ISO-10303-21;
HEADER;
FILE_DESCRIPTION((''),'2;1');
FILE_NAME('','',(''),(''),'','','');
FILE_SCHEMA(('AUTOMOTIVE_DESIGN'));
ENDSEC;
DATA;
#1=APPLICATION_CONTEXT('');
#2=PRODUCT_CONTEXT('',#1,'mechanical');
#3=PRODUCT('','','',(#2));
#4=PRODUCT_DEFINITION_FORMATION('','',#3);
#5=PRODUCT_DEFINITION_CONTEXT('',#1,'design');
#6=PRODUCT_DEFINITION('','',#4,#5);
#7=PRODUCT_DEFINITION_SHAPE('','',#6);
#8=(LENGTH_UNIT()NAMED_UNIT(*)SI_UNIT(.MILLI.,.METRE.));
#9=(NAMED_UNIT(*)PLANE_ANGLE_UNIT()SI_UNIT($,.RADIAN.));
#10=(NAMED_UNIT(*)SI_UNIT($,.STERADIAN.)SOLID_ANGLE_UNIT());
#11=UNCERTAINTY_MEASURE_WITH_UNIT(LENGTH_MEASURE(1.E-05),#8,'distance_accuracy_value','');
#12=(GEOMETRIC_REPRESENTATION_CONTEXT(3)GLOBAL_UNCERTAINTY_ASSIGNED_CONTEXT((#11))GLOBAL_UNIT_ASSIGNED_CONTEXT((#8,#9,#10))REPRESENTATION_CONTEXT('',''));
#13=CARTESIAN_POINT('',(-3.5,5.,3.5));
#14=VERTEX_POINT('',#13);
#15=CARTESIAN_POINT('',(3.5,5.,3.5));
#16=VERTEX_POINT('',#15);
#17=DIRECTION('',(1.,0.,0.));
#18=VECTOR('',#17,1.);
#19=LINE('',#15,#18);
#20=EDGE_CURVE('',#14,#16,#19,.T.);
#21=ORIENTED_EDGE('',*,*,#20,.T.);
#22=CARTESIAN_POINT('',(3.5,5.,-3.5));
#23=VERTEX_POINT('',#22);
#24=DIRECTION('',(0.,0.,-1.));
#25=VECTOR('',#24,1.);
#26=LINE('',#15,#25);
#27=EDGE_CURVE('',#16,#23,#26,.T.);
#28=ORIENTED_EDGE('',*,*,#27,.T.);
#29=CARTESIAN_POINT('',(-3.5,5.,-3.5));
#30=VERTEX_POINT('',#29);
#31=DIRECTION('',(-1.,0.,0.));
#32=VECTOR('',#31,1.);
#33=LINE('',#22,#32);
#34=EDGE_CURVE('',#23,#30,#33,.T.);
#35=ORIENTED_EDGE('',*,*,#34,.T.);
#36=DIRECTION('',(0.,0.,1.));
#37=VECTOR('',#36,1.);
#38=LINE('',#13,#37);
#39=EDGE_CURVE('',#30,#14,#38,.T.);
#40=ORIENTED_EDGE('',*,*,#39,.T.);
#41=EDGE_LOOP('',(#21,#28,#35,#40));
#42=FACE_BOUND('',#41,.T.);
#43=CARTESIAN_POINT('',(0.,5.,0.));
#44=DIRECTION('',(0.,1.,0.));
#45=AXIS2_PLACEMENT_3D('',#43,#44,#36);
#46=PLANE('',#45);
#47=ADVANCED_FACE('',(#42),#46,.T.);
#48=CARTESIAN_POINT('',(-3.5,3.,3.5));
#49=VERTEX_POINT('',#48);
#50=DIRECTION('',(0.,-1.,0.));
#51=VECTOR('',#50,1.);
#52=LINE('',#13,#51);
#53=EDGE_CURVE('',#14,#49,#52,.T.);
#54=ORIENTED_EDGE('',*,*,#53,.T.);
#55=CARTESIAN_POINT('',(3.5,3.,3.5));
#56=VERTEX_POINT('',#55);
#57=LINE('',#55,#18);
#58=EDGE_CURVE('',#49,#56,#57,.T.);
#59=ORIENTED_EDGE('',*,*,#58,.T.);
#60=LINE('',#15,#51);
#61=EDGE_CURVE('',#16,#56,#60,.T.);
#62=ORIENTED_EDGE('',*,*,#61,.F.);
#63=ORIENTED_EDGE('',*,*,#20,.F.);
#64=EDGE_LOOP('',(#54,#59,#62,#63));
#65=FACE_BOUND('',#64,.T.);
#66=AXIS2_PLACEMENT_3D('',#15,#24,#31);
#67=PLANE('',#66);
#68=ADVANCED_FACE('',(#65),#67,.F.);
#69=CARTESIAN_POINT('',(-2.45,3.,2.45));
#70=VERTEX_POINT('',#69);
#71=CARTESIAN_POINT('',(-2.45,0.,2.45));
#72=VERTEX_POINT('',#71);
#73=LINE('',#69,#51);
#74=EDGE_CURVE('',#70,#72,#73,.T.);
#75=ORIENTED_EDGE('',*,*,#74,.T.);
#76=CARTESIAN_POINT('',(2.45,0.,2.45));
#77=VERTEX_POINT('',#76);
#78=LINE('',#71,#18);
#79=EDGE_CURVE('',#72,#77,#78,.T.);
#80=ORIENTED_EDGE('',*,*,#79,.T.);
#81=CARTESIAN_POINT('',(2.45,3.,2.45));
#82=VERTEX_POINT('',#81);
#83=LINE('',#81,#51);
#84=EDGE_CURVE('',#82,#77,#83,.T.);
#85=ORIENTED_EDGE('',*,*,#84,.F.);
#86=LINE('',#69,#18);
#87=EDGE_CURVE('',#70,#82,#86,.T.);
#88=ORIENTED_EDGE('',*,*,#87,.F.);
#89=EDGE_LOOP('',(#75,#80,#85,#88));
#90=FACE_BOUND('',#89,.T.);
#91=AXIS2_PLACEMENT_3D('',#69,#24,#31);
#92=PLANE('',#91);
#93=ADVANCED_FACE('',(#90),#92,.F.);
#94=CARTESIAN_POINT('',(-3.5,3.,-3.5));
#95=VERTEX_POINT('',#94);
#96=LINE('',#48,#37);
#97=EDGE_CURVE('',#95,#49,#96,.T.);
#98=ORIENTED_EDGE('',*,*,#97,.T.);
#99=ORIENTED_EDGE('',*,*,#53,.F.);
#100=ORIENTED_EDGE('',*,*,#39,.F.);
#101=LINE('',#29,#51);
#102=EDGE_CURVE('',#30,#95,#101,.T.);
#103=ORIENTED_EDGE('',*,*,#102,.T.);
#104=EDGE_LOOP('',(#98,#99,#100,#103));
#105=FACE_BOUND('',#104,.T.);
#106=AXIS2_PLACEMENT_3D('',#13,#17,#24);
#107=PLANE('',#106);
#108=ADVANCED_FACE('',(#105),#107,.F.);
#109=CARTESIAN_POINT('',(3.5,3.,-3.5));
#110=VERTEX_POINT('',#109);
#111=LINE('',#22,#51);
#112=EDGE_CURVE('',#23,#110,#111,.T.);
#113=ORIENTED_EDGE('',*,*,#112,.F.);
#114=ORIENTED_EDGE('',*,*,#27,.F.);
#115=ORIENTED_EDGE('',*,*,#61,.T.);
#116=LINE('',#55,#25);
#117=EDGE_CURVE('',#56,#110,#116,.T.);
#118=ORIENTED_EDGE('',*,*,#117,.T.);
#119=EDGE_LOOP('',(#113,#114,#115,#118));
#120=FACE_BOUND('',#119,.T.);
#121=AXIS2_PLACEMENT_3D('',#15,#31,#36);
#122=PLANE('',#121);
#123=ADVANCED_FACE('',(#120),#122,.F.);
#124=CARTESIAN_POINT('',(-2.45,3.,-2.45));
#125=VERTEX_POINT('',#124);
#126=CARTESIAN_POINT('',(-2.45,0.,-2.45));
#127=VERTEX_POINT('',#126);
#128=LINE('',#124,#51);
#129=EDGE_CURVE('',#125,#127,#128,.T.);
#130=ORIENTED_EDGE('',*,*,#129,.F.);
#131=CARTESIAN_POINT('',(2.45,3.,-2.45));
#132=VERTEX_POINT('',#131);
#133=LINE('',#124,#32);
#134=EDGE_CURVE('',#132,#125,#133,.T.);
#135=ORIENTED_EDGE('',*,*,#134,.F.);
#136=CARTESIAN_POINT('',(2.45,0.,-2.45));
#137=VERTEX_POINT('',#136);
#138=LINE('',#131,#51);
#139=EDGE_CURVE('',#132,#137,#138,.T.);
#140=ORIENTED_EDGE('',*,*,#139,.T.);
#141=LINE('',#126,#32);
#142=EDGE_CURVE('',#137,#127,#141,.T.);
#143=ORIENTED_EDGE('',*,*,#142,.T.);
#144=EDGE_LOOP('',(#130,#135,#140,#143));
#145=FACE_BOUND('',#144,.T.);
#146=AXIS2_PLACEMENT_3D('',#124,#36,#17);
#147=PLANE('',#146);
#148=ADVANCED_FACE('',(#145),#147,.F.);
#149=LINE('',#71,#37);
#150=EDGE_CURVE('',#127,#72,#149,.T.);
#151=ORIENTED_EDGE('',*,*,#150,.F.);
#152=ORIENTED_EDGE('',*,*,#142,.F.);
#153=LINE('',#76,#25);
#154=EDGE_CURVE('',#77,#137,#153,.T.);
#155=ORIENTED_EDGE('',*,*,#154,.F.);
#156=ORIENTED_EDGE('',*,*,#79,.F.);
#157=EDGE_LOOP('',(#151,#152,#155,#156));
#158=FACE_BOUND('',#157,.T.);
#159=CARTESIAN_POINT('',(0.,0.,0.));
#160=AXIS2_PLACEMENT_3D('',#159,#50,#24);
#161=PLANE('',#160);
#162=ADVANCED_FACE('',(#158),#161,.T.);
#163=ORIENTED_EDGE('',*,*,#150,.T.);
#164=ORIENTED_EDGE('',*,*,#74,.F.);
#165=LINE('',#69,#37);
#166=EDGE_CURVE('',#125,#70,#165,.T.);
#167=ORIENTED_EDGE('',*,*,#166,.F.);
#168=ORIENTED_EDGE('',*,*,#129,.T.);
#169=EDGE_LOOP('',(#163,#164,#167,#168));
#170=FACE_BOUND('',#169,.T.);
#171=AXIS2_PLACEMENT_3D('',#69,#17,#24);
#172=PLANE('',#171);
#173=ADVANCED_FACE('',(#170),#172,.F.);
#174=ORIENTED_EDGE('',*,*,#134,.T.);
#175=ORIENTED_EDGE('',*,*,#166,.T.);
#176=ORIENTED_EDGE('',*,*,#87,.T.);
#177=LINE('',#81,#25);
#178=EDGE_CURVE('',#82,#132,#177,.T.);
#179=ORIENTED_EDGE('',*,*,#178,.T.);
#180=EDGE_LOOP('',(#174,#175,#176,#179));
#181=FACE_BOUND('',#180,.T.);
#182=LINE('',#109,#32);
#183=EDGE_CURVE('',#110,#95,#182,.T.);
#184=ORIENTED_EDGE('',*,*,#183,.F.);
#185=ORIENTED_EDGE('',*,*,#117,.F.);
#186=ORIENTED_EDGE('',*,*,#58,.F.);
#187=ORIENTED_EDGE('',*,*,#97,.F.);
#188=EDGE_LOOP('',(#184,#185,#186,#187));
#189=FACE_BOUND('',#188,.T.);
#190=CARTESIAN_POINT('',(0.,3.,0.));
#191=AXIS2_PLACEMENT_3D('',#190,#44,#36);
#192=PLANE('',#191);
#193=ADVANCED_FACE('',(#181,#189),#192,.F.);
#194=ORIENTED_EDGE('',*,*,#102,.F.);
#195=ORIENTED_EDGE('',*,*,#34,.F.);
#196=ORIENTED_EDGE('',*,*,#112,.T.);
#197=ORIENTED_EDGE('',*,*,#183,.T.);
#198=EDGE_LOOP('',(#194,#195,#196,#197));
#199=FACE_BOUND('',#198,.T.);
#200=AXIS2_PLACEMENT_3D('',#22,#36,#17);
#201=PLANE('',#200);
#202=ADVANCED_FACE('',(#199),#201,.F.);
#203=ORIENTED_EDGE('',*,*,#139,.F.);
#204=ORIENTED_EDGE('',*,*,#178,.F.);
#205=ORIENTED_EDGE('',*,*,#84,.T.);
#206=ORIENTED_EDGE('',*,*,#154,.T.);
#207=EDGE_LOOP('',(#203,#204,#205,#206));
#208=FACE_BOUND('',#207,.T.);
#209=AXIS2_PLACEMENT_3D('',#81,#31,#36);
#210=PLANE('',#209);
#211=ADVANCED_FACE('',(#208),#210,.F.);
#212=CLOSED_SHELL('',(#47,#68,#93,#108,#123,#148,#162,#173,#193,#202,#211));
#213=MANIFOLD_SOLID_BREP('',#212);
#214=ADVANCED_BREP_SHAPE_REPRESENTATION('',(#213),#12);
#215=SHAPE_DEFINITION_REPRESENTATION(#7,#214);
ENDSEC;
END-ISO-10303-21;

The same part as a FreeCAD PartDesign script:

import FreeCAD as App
import Part
import Sketcher

doc = App.newDocument("Part")
body = doc.addObject("PartDesign::Body", "Body")

# Sketch on XZ plane
sketch1 = body.newObject("Sketcher::SketchObject", "Sketch")
sketch1.AttachmentSupport = (doc.getObject("XZ_Plane"), [""])
sketch1.MapMode = "FlatFace"
sketch1.addGeometry(Part.LineSegment(App.Vector(-2.5, -2.5, 0), App.Vector(-2.5, 2.5, 0)), False)
sketch1.addGeometry(Part.LineSegment(App.Vector(-2.5, 2.5, 0), App.Vector(2.5, 2.5, 0)), False)
sketch1.addGeometry(Part.LineSegment(App.Vector(2.5, 2.5, 0), App.Vector(2.5, -2.5, 0)), False)
sketch1.addGeometry(Part.LineSegment(App.Vector(2.5, -2.5, 0), App.Vector(-2.5, -2.5, 0)), False)
sketch1.addConstraint(Sketcher.Constraint("Coincident", 0, 2, 1, 1))
sketch1.addConstraint(Sketcher.Constraint("Coincident", 1, 2, 2, 1))
sketch1.addConstraint(Sketcher.Constraint("Coincident", 2, 2, 3, 1))
sketch1.addConstraint(Sketcher.Constraint("Coincident", 3, 2, 0, 1))
sketch1.addConstraint(Sketcher.Constraint("Vertical", 0))
sketch1.addConstraint(Sketcher.Constraint("Horizontal", 1))
sketch1.addConstraint(Sketcher.Constraint("Vertical", 2))
sketch1.addConstraint(Sketcher.Constraint("Horizontal", 3))
sketch1.addConstraint(Sketcher.Constraint("Symmetric", 0, 2, 2, 2, -1, 1))
sketch1.addConstraint(Sketcher.Constraint("Equal", 3, 0))
sketch1.addConstraint(Sketcher.Constraint("DistanceX", 1, 1, 1, 2, 4.9))
pad1 = body.newObject("PartDesign::Pad", "Pad")
pad1.Profile = sketch1
pad1.Length = 3
pad1.Reversed = True

# Sketch on XZ plane
sketch2 = body.newObject("Sketcher::SketchObject", "Sketch001")
sketch2.AttachmentSupport = (doc.getObject("XZ_Plane"), [""])
sketch2.MapMode = "FlatFace"
sketch2.AttachmentOffset = App.Placement(App.Vector(0, 0, -3), App.Rotation())
sketch2.addGeometry(Part.LineSegment(App.Vector(-4, -4, 0), App.Vector(-4, 4, 0)), False)
sketch2.addGeometry(Part.LineSegment(App.Vector(-4, 4, 0), App.Vector(4, 4, 0)), False)
sketch2.addGeometry(Part.LineSegment(App.Vector(4, 4, 0), App.Vector(4, -4, 0)), False)
sketch2.addGeometry(Part.LineSegment(App.Vector(4, -4, 0), App.Vector(-4, -4, 0)), False)
sketch2.addConstraint(Sketcher.Constraint("Coincident", 0, 2, 1, 1))
sketch2.addConstraint(Sketcher.Constraint("Coincident", 1, 2, 2, 1))
sketch2.addConstraint(Sketcher.Constraint("Coincident", 2, 2, 3, 1))
sketch2.addConstraint(Sketcher.Constraint("Coincident", 3, 2, 0, 1))
sketch2.addConstraint(Sketcher.Constraint("Vertical", 0))
sketch2.addConstraint(Sketcher.Constraint("Horizontal", 1))
sketch2.addConstraint(Sketcher.Constraint("Vertical", 2))
sketch2.addConstraint(Sketcher.Constraint("Horizontal", 3))
sketch2.addConstraint(Sketcher.Constraint("Symmetric", 0, 2, 2, 2, -1, 1))
sketch2.addConstraint(Sketcher.Constraint("Equal", 3, 0))
sketch2.addConstraint(Sketcher.Constraint("DistanceX", 1, 1, 1, 2, 7.0))
pad2 = body.newObject("PartDesign::Pad", "Pad001")
pad2.Profile = sketch2
pad2.Length = 2
pad2.Reversed = True

doc.recompute()
